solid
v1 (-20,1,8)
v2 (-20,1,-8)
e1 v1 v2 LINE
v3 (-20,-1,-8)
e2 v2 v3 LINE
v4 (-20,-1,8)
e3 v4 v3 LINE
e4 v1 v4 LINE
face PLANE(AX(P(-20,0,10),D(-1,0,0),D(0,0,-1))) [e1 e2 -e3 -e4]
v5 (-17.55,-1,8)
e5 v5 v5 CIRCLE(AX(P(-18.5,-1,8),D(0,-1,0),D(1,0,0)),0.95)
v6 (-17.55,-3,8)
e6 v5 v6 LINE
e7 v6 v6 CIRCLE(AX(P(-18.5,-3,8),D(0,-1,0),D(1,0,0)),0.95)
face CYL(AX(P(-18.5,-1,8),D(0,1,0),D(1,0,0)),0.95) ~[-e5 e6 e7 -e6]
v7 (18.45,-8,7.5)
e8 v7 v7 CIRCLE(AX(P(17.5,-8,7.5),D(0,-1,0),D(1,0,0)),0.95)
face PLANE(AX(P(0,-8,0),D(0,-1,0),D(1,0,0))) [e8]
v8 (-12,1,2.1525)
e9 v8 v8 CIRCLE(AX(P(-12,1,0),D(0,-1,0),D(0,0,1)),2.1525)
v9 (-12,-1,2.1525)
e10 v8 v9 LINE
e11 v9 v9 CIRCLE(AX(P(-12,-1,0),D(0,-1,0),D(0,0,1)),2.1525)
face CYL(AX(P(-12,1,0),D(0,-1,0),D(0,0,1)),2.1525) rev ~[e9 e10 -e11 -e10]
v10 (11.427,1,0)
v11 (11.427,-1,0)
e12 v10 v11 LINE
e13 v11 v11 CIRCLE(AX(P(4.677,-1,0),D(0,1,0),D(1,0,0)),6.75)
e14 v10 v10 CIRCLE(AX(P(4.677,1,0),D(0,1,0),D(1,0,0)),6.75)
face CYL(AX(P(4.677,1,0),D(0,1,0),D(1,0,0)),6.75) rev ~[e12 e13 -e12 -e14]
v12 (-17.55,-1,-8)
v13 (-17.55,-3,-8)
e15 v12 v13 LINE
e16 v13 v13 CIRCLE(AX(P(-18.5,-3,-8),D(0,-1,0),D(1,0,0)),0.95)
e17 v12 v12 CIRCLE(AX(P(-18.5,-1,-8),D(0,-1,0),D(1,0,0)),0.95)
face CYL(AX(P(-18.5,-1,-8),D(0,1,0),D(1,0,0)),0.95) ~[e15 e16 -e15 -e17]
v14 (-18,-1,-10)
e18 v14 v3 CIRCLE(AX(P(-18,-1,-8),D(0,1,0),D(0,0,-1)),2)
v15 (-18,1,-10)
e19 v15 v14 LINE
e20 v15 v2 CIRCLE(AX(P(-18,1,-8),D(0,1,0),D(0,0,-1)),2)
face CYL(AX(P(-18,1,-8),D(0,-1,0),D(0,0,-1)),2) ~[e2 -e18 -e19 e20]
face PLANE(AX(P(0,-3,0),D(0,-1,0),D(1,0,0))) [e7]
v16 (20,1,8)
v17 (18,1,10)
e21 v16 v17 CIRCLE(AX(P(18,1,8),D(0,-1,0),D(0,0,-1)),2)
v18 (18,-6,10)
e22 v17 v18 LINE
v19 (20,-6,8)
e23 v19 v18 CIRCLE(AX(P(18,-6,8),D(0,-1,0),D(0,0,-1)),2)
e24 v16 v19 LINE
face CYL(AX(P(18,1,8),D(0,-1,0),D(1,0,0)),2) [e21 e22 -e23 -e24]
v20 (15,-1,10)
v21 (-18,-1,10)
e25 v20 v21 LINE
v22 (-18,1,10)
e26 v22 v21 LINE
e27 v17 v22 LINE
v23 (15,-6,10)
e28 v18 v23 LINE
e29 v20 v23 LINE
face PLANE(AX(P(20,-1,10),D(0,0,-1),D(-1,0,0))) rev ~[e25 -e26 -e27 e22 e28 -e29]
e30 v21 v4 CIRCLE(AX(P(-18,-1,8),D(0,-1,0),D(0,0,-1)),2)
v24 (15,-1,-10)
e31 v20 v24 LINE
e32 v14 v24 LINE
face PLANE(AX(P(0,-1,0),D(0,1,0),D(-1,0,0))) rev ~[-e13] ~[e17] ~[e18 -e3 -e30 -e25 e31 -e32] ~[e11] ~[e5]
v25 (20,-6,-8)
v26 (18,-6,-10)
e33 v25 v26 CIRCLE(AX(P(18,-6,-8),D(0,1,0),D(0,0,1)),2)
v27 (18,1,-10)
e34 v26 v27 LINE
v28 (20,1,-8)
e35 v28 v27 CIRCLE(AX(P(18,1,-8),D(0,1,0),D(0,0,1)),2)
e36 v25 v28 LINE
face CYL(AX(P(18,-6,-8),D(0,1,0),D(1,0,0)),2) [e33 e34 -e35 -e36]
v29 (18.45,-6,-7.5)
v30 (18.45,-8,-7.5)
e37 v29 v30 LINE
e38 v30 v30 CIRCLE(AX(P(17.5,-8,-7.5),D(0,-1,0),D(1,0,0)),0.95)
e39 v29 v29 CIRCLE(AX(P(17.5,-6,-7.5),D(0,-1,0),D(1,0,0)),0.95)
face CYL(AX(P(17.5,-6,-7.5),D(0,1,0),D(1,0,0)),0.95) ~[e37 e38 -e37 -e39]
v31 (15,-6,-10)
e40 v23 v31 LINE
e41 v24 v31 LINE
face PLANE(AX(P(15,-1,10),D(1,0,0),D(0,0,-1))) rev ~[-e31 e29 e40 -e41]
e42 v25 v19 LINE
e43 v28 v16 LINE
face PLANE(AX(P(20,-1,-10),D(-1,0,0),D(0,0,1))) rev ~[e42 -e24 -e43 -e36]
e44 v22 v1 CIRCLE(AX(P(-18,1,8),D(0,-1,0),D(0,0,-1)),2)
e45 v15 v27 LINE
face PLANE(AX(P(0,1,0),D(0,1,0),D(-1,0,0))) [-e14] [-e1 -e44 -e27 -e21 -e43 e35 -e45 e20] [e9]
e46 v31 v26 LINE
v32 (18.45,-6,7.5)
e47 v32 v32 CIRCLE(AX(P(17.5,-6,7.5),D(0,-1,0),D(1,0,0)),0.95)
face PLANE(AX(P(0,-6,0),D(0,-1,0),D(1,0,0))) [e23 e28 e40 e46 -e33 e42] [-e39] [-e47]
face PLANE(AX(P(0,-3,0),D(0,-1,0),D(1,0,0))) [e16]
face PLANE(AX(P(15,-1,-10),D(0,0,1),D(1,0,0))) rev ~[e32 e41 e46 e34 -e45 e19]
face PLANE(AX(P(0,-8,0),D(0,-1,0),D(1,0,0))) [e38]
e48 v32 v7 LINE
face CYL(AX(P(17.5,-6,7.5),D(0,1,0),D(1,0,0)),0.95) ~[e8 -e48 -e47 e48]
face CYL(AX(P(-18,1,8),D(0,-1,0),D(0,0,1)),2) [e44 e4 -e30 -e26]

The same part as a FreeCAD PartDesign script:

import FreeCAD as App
import Part
import Sketcher

V = App.Vector


def edges_at(feature, points):
    """Names of the edges that pass closest to the given points."""
    edges = feature.Shape.Edges
    near = lambda p: min(range(len(edges)), key=lambda i: edges[i].distToShape(Part.Vertex(*p))[0])
    return sorted({f"Edge{near(p) + 1}" for p in points})

doc = App.newDocument("Part")
body = doc.addObject("PartDesign::Body", "Body")

# Sketch on XZ plane
sketch1 = body.newObject("Sketcher::SketchObject", "Sketch")
sketch1.AttachmentSupport = (doc.getObject("XZ_Plane"), [""])
sketch1.MapMode = "FlatFace"
sketch1.addGeometry([
    Part.LineSegment(V(-20, 10, 0), V(20, 10, 0)),
    Part.LineSegment(V(20, 10, 0), V(20, -10, 0)),
    Part.LineSegment(V(20, -10, 0), V(-20, -10, 0)),
    Part.LineSegment(V(-20, -10, 0), V(-20, 10, 0)),
], False)
sketch1.addConstraint([
    Sketcher.Constraint("Coincident", 0, 2, 1, 1),
    Sketcher.Constraint("Coincident", 1, 2, 2, 1),
    Sketcher.Constraint("Coincident", 2, 2, 3, 1),
    Sketcher.Constraint("Coincident", 3, 2, 0, 1),
    Sketcher.Constraint("Horizontal", 0),
    Sketcher.Constraint("Vertical", 1),
    Sketcher.Constraint("Horizontal", 2),
    Sketcher.Constraint("Vertical", 3),
    Sketcher.Constraint("Symmetric", 0, 2, 2, 2, -1, 1),
    Sketcher.Constraint("DistanceX", 0, 1, 0, 2, 40.0),
    Sketcher.Constraint("DistanceY", 1, 2, 1, 1, 20.0),
])
pad1 = body.newObject("PartDesign::Pad", "Pad")
pad1.Profile = sketch1
pad1.Length = 2
pad1.Midplane = True

# Sketch on XZ plane
sketch2 = body.newObject("Sketcher::SketchObject", "Sketch001")
sketch2.AttachmentSupport = (doc.getObject("XZ_Plane"), [""])
sketch2.MapMode = "FlatFace"
sketch2.AttachmentOffset = App.Placement(V(0, 0, 1), App.Rotation())
sketch2.addGeometry([
    Part.LineSegment(V(20, -10, 0), V(20, 10, 0)),
    Part.LineSegment(V(20, 10, 0), V(15, 10, 0)),
    Part.LineSegment(V(15, 10, 0), V(15, -10, 0)),
    Part.LineSegment(V(15, -10, 0), V(20, -10, 0)),
], False)
sketch2.addConstraint([
    Sketcher.Constraint("Coincident", 0, 2, 1, 1),
    Sketcher.Constraint("Coincident", 1, 2, 2, 1),
    Sketcher.Constraint("Coincident", 2, 2, 3, 1),
    Sketcher.Constraint("Coincident", 3, 2, 0, 1),
    Sketcher.Constraint("Vertical", 0),
    Sketcher.Constraint("Horizontal", 1),
    Sketcher.Constraint("Vertical", 2),
    Sketcher.Constraint("Horizontal", 3),
    Sketcher.Constraint("DistanceX", 1, 2, 1, 1, 5.0),
    Sketcher.Constraint("DistanceY", 0, 1, 0, 2, 20.0),
    Sketcher.Constraint("DistanceX", -1, 1, 0, 2, 20.0),
    Sketcher.Constraint("DistanceY", -1, 1, 0, 2, 10.0),
])
pad2 = body.newObject("PartDesign::Pad", "Pad001")
pad2.Profile = sketch2
pad2.Length = 5

# Sketch on XZ plane
sketch3 = body.newObject("Sketcher::SketchObject", "Sketch002")
sketch3.AttachmentSupport = (doc.getObject("XZ_Plane"), [""])
sketch3.MapMode = "FlatFace"
sketch3.AttachmentOffset = App.Placement(V(0, 0, 6), App.Rotation())
sketch3.addGeometry([
    Part.Circle(V(17.5, 7.5, 0), V(0, 0, 1), 0.95),
    Part.Circle(V(17.5, -7.5, 0), V(0, 0, 1), 0.95),
], False)
sketch3.addConstraint([
    Sketcher.Constraint("Equal", 0, 1),
    Sketcher.Constraint("Symmetric", 0, 3, 1, 3, -1),
    Sketcher.Constraint("Diameter", 0, 1.9),
    Sketcher.Constraint("DistanceY", 1, 3, 0, 3, 15.0),
    Sketcher.Constraint("DistanceX", -1, 1, 0, 3, 17.5),
])
pad3 = body.newObject("PartDesign::Pad", "Pad002")
pad3.Profile = sketch3
pad3.Length = 2

# Sketch on XZ plane
sketch4 = body.newObject("Sketcher::SketchObject", "Sketch003")
sketch4.AttachmentSupport = (doc.getObject("XZ_Plane"), [""])
sketch4.MapMode = "FlatFace"
sketch4.AttachmentOffset = App.Placement(V(0, 0, 1), App.Rotation())
sketch4.addGeometry([
    Part.Circle(V(-18.5, 8, 0), V(0, 0, 1), 0.95),
    Part.Circle(V(-18.5, -8, 0), V(0, 0, 1), 0.95),
], False)
sketch4.addConstraint([
    Sketcher.Constraint("Equal", 0, 1),
    Sketcher.Constraint("Symmetric", 0, 3, 1, 3, -1),
    Sketcher.Constraint("Diameter", 0, 1.9),
    Sketcher.Constraint("DistanceY", -1, 1, 0, 3, 8.0),
    Sketcher.Constraint("DistanceX", 0, 3, -1, 1, 18.5),
])
pad4 = body.newObject("PartDesign::Pad", "Pad003")
pad4.Profile = sketch4
pad4.Length = 2
doc.recompute()

fillet = body.newObject("PartDesign::Fillet", "Fillet")
fillet.Base = (pad4, edges_at(pad4, [
    (20, -2.5, 10),
    (20, -2.5, -10),
    (-20, 0, 10),
    (-20, 0, -10),
]))
fillet.Radius = 2

# Sketch on XZ plane
sketch5 = body.newObject("Sketcher::SketchObject", "Sketch004")
sketch5.AttachmentSupport = (doc.getObject("XZ_Plane"), [""])
sketch5.MapMode = "FlatFace"
sketch5.AttachmentOffset = App.Placement(V(0, 0, -1), App.Rotation())
sketch5.addGeometry(Part.Circle(V(4.677, 0, 0), V(0, 0, 1), 6.75), False)
sketch5.addConstraint([
    Sketcher.Constraint("PointOnObject", 0, 3, -1),
    Sketcher.Constraint("Diameter", 0, 13.5),
    Sketcher.Constraint("DistanceX", -1, 1, 0, 3, 4.677),
])
pocket1 = body.newObject("PartDesign::Pocket", "Pocket")
pocket1.Profile = sketch5
pocket1.Type = "ThroughAll"
pocket1.Reversed = True

# Sketch on XZ plane
sketch6 = body.newObject("Sketcher::SketchObject", "Sketch005")
sketch6.AttachmentSupport = (doc.getObject("XZ_Plane"), [""])
sketch6.MapMode = "FlatFace"
sketch6.AttachmentOffset = App.Placement(V(0, 0, -1), App.Rotation())
sketch6.addGeometry(Part.Circle(V(-12, 0, 0), V(0, 0, 1), 2.1525), False)
sketch6.addConstraint([
    Sketcher.Constraint("PointOnObject", 0, 3, -1),
    Sketcher.Constraint("Diameter", 0, 4.305),
    Sketcher.Constraint("DistanceX", 0, 3, -1, 1, 12.0),
])
doc.recompute()
hole = body.newObject("PartDesign::Hole", "Hole")
hole.Profile = sketch6
hole.ThreadType = "None"
hole.Diameter = 4.305
hole.DepthType = "ThroughAll"
hole.Reversed = True

doc.recompute()
